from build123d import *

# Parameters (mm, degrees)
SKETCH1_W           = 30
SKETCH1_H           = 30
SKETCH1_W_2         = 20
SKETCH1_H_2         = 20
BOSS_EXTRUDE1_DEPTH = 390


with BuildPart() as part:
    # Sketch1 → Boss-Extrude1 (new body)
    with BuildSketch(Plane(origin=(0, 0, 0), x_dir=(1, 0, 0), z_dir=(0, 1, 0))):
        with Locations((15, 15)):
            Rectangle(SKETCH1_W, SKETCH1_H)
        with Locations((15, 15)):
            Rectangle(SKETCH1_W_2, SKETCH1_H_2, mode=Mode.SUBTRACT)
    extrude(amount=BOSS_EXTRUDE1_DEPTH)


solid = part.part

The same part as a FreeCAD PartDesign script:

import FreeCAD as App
import Part
import Sketcher

doc = App.newDocument("Part")
body = doc.addObject("PartDesign::Body", "Body")

# Sketch on XZ plane
sketch1 = doc.addObject("Sketcher::SketchObject", "Sketch")
body.addObject(sketch1)
sketch1.AttachmentSupport = (doc.XZ_Plane, [""])
sketch1.MapMode = "FlatFace"
sketch1.addGeometry([
    Part.LineSegment(App.Vector(0, -30, 0), App.Vector(0, 0, 0)),  # 0
    Part.LineSegment(App.Vector(0, 0, 0), App.Vector(30, 0, 0)),  # 1
    Part.LineSegment(App.Vector(30, 0, 0), App.Vector(30, -30, 0)),  # 2
    Part.LineSegment(App.Vector(30, -30, 0), App.Vector(0, -30, 0)),  # 3
    Part.LineSegment(App.Vector(25, -5, 0), App.Vector(5, -5, 0)),  # 4
    Part.LineSegment(App.Vector(5, -5, 0), App.Vector(5, -25, 0)),  # 5
    Part.LineSegment(App.Vector(5, -25, 0), App.Vector(25, -25, 0)),  # 6
    Part.LineSegment(App.Vector(25, -25, 0), App.Vector(25, -5, 0)),  # 7
], False)
sketch1.addConstraint([
    Sketcher.Constraint("Coincident", 0, 2, 1, 1),
    Sketcher.Constraint("Coincident", 1, 2, 2, 1),
    Sketcher.Constraint("Coincident", 2, 2, 3, 1),
    Sketcher.Constraint("Coincident", 3, 2, 0, 1),
    Sketcher.Constraint("Coincident", 4, 2, 5, 1),
    Sketcher.Constraint("Coincident", 5, 2, 6, 1),
    Sketcher.Constraint("Coincident", 6, 2, 7, 1),
    Sketcher.Constraint("Coincident", 7, 2, 4, 1),
    Sketcher.Constraint("Vertical", 0),
    Sketcher.Constraint("Horizontal", 1),
    Sketcher.Constraint("Vertical", 2),
    Sketcher.Constraint("Horizontal", 3),
    Sketcher.Constraint("Horizontal", 4),
    Sketcher.Constraint("Vertical", 5),
    Sketcher.Constraint("Horizontal", 6),
    Sketcher.Constraint("Vertical", 7),
    Sketcher.Constraint("Coincident", 0, 2, -1, 1),
    Sketcher.Constraint("Equal", 3, 0),
    Sketcher.Constraint("Equal", 6, 5),
    Sketcher.Constraint("DistanceX", 1, 1, 1, 2, 30.0),
    Sketcher.Constraint("DistanceX", 4, 2, 4, 1, 20.0),
    Sketcher.Constraint("DistanceX", -1, 1, 4, 2, 5.0),
    Sketcher.Constraint("DistanceY", 4, 2, -1, 1, 5.0),
])
pad1 = doc.addObject("PartDesign::Pad", "Pad")
body.addObject(pad1)
pad1.Profile = sketch1
pad1.Length = 390
pad1.Reversed = True

doc.recompute()
